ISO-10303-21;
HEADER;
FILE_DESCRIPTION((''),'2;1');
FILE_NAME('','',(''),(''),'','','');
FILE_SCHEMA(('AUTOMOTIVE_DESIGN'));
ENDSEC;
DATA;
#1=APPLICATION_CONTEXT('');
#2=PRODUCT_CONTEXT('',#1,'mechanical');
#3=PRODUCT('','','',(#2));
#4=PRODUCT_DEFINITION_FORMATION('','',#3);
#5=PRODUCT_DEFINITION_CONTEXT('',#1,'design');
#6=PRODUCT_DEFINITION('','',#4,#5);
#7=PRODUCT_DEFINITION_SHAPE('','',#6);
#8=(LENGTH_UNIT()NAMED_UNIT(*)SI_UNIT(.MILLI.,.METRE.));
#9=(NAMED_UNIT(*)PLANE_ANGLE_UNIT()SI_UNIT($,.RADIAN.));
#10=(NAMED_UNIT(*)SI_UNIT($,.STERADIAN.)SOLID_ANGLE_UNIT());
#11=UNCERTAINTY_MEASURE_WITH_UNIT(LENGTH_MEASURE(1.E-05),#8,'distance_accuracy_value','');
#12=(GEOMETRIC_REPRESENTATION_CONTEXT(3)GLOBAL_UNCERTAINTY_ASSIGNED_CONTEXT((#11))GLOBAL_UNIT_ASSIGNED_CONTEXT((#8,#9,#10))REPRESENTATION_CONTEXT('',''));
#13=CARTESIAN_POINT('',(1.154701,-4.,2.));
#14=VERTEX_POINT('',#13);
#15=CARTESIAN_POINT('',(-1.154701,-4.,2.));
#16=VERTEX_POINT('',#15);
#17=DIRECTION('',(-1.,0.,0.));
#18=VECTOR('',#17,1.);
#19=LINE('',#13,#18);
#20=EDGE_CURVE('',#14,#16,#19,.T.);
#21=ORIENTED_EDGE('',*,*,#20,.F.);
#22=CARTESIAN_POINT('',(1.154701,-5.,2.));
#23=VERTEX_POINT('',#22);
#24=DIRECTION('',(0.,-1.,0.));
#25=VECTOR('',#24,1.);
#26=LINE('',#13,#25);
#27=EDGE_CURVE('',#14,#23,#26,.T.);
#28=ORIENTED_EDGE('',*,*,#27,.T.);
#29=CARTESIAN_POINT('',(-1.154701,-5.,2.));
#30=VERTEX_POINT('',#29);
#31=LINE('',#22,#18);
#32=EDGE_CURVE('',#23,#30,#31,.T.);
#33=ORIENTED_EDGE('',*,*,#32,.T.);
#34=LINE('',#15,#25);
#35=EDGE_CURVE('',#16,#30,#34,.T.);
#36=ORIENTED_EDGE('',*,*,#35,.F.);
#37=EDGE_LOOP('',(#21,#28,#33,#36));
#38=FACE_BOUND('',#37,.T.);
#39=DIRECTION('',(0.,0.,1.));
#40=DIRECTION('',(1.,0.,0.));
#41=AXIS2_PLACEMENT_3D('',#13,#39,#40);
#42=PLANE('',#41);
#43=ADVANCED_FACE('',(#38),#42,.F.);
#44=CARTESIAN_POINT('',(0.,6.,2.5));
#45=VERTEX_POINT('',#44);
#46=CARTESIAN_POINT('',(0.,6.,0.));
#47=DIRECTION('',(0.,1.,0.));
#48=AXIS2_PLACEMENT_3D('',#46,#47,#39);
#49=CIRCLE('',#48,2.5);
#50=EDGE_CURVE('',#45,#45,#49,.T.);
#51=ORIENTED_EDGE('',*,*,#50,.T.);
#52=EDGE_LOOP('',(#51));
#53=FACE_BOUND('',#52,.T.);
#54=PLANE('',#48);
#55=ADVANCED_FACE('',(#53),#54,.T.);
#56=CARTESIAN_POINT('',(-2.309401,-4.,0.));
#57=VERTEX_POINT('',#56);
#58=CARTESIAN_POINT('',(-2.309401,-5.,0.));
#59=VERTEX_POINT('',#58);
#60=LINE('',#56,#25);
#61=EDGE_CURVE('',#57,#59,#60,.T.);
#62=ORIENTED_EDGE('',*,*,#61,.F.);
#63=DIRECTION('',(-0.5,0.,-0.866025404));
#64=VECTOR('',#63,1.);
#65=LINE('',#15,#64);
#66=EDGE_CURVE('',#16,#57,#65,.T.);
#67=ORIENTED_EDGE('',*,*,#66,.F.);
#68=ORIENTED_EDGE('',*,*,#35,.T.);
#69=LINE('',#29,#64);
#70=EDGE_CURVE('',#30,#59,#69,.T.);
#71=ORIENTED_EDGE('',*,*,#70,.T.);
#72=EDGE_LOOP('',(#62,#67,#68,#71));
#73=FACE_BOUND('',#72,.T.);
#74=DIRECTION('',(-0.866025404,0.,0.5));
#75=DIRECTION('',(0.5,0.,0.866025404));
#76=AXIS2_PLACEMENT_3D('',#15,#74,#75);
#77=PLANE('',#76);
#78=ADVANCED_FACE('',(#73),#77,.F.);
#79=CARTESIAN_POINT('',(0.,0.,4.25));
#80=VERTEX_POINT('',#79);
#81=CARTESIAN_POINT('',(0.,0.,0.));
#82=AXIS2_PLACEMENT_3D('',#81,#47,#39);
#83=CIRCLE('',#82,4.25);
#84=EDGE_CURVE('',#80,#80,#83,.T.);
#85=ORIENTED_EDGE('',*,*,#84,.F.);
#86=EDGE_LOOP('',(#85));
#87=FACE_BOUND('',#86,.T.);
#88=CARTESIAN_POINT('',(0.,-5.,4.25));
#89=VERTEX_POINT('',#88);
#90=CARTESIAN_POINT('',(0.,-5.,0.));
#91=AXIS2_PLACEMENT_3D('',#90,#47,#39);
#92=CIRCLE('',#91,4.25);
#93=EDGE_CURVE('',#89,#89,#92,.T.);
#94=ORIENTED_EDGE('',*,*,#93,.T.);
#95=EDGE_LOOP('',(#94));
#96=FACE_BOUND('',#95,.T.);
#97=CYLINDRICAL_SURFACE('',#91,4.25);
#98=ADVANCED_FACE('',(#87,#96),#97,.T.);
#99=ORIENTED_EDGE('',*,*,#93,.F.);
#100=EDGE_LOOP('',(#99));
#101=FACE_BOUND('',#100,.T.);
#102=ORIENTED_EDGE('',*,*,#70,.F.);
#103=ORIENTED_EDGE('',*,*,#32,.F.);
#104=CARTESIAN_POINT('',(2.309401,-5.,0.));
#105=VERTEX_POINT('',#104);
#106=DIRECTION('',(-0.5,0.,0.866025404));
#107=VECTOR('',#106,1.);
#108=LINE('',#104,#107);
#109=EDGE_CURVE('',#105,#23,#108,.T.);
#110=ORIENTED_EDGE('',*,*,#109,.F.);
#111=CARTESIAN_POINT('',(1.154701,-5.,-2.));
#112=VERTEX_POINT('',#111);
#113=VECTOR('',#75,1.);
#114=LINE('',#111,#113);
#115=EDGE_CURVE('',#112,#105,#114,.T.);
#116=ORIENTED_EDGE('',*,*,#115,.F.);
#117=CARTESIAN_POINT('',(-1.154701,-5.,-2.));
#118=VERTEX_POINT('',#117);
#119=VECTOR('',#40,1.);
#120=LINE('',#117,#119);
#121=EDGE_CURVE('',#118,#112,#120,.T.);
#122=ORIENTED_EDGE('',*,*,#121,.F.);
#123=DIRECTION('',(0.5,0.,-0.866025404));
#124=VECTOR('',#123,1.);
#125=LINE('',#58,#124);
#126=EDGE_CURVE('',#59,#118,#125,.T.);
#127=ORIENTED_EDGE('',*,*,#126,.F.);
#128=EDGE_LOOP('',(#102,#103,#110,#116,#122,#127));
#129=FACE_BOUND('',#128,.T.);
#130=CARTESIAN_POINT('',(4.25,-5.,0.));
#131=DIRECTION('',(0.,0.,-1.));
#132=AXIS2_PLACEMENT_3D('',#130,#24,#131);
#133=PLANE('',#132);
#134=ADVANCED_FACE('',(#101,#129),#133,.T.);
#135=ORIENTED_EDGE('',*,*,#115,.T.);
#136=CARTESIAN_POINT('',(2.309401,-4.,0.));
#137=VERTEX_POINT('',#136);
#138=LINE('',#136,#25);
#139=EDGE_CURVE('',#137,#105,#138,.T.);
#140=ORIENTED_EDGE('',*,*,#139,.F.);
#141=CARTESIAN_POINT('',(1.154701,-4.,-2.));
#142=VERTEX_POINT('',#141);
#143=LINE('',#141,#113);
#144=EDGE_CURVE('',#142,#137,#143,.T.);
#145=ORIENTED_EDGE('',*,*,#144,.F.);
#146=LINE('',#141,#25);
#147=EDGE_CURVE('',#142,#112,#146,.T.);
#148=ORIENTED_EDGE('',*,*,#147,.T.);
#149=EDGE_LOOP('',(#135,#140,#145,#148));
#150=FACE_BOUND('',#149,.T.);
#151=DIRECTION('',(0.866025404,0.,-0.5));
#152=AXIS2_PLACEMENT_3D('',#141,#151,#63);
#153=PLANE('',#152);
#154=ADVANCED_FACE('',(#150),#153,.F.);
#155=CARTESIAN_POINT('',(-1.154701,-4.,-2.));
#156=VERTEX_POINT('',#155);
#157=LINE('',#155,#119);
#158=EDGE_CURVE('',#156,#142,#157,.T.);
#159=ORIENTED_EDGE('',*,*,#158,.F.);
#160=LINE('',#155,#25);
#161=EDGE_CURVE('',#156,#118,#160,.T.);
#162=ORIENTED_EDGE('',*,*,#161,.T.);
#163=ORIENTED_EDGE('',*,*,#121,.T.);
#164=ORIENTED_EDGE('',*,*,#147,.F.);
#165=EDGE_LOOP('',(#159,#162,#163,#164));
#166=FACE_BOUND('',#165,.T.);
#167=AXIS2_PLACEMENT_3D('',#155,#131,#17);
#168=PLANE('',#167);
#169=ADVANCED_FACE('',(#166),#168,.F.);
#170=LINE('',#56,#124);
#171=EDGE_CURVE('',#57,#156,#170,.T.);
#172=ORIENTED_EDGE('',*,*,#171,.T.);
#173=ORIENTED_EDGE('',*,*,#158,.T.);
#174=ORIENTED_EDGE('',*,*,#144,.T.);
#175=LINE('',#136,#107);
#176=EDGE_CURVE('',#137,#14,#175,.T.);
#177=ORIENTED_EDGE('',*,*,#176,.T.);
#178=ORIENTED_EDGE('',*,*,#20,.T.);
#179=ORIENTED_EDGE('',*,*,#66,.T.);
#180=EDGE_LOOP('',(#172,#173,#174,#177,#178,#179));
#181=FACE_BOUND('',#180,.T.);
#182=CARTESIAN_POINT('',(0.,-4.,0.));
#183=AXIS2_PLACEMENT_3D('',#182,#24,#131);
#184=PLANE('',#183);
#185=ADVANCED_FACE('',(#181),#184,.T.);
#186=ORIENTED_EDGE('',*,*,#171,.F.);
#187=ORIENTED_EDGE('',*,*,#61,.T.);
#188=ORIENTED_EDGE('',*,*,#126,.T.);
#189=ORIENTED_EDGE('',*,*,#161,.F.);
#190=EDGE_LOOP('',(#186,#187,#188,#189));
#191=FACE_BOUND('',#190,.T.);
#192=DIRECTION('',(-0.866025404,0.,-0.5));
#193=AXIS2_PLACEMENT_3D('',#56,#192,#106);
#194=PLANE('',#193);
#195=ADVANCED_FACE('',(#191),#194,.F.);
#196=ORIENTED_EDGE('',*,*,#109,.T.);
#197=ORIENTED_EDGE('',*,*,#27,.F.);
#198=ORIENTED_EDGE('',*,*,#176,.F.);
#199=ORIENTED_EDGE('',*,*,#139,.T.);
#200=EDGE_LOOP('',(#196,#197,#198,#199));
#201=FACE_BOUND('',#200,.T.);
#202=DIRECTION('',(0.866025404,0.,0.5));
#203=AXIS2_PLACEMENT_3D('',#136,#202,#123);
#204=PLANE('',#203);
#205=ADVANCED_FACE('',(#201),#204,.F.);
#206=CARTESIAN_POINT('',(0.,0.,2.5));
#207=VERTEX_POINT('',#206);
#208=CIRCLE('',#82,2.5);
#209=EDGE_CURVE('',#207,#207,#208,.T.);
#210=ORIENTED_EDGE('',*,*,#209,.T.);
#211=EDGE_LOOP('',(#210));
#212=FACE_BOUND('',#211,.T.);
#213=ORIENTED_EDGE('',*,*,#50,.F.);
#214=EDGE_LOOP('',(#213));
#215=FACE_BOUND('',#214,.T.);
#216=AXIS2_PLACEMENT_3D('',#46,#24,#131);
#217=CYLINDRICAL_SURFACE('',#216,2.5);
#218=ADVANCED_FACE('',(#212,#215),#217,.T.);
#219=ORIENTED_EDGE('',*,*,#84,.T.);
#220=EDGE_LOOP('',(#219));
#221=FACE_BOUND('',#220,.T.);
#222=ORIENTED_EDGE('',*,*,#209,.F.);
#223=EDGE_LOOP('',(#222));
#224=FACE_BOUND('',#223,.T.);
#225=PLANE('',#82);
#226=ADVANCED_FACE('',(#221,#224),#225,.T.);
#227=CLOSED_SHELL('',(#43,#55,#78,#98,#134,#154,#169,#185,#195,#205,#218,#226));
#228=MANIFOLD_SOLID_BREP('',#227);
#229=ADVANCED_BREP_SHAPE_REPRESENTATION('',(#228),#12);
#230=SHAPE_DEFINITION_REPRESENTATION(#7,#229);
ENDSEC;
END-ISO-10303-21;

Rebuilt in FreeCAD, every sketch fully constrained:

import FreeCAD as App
import Part
import Sketcher
from FreeCAD import Vector
Q = App.Units.Quantity

doc = App.newDocument("Part")
body = doc.addObject("PartDesign::Body", "Body")

# Sketch on XY plane
sketch1 = body.newObject("Sketcher::SketchObject", "Sketch")
sketch1.AttachmentSupport = (doc.getObject("XY_Plane"), [""])
sketch1.MapMode = "FlatFace"
sketch1.addGeometry(Part.LineSegment(Vector(4.2, 0, 0), Vector(4.2, -5, 0)), False)
sketch1.addGeometry(Part.LineSegment(Vector(4.2, -5, 0), Vector(0, -5, 0)), False)
sketch1.addGeometry(Part.LineSegment(Vector(0, -5, 0), Vector(0, 0, 0)), False)
sketch1.addGeometry(Part.LineSegment(Vector(0, 0, 0), Vector(4.2, 0, 0)), False)
sketch1.addConstraint(Sketcher.Constraint("Coincident", 0, 2, 1, 1))
sketch1.addConstraint(Sketcher.Constraint("Coincident", 1, 2, 2, 1))
sketch1.addConstraint(Sketcher.Constraint("Coincident", 2, 2, 3, 1))
sketch1.addConstraint(Sketcher.Constraint("Coincident", 3, 2, 0, 1))
sketch1.addConstraint(Sketcher.Constraint("Vertical", 0))
sketch1.addConstraint(Sketcher.Constraint("Horizontal", 1))
sketch1.addConstraint(Sketcher.Constraint("Vertical", 2))
sketch1.addConstraint(Sketcher.Constraint("Horizontal", 3))
sketch1.addConstraint(Sketcher.Constraint("Coincident", 2, 2, -1, 1))
sketch1.addConstraint(Sketcher.Constraint("DistanceY", 0, 2, 0, 1, 5.0))
sketch1.addConstraint(Sketcher.Constraint("DistanceX", 1, 2, 1, 1, 4.25))
revolution = body.newObject("PartDesign::Revolution", "Revolution")
revolution.Profile = sketch1
revolution.ReferenceAxis = (sketch1, ["V_Axis"])
revolution.Angle = 360

# Sketch on XZ plane
sketch2 = body.newObject("Sketcher::SketchObject", "Sketch001")
sketch2.AttachmentSupport = (doc.getObject("XZ_Plane"), [""])
sketch2.MapMode = "FlatFace"
sketch2.addGeometry(Part.Circle(Vector(0, 0, 0), Vector(0, 0, 1), 2.5), False)
sketch2.addConstraint(Sketcher.Constraint("Coincident", 0, 3, -1, 1))
sketch2.addConstraint(Sketcher.Constraint("Diameter", 0, 5.0))
pad1 = body.newObject("PartDesign::Pad", "Pad")
pad1.Profile = sketch2
pad1.Length = 6
pad1.Reversed = True

# Sketch on XZ plane
sketch3 = body.newObject("Sketcher::SketchObject", "Sketch002")
sketch3.AttachmentSupport = (doc.getObject("XZ_Plane"), [""])
sketch3.MapMode = "FlatFace"
sketch3.AttachmentOffset = App.Placement(Vector(0, 0, 5), App.Rotation())
sketch3.addGeometry(Part.LineSegment(Vector(-1.2, -2, 0), Vector(1.2, -2, 0)), False)
sketch3.addGeometry(Part.LineSegment(Vector(1.2, -2, 0), Vector(2.3, 0, 0)), False)
sketch3.addGeometry(Part.LineSegment(Vector(2.3, 0, 0), Vector(1.2, 2, 0)), False)
sketch3.addGeometry(Part.LineSegment(Vector(1.2, 2, 0), Vector(-1.2, 2, 0)), False)
sketch3.addGeometry(Part.LineSegment(Vector(-1.2, 2, 0), Vector(-2.3, 0, 0)), False)
sketch3.addGeometry(Part.LineSegment(Vector(-2.3, 0, 0), Vector(-1.2, -2, 0)), False)
sketch3.addConstraint(Sketcher.Constraint("Coincident", 0, 2, 1, 1))
sketch3.addConstraint(Sketcher.Constraint("Coincident", 1, 2, 2, 1))
sketch3.addConstraint(Sketcher.Constraint("Coincident", 2, 2, 3, 1))
sketch3.addConstraint(Sketcher.Constraint("Coincident", 3, 2, 4, 1))
sketch3.addConstraint(Sketcher.Constraint("Coincident", 4, 2, 5, 1))
sketch3.addConstraint(Sketcher.Constraint("Coincident", 5, 2, 0, 1))
sketch3.addConstraint(Sketcher.Constraint("Horizontal", 0))
sketch3.addConstraint(Sketcher.Constraint("Horizontal", 3))
sketch3.addConstraint(Sketcher.Constraint("Symmetric", 0, 2, 3, 2, -1, 1))
sketch3.addConstraint(Sketcher.Constraint("Symmetric", 1, 2, 4, 2, -1, 1))
sketch3.addConstraint(Sketcher.Constraint("PointOnObject", 1, 2, -1))
sketch3.addConstraint(Sketcher.Constraint("Parallel", 2, 5))
sketch3.addConstraint(Sketcher.Constraint("Vertical", 0, 2, 2, 2))
sketch3.addConstraint(Sketcher.Constraint("Angle", 1, Q("60 deg")))
sketch3.addConstraint(Sketcher.Constraint("DistanceY", 0, 2, -1, 1, 2.0))
sketch3.addConstraint(Sketcher.Constraint("DistanceX", 0, 1, 0, 2, 2.309401))
pocket1 = body.newObject("PartDesign::Pocket", "Pocket")
pocket1.Profile = sketch3
pocket1.Length = 1

doc.recompute()
